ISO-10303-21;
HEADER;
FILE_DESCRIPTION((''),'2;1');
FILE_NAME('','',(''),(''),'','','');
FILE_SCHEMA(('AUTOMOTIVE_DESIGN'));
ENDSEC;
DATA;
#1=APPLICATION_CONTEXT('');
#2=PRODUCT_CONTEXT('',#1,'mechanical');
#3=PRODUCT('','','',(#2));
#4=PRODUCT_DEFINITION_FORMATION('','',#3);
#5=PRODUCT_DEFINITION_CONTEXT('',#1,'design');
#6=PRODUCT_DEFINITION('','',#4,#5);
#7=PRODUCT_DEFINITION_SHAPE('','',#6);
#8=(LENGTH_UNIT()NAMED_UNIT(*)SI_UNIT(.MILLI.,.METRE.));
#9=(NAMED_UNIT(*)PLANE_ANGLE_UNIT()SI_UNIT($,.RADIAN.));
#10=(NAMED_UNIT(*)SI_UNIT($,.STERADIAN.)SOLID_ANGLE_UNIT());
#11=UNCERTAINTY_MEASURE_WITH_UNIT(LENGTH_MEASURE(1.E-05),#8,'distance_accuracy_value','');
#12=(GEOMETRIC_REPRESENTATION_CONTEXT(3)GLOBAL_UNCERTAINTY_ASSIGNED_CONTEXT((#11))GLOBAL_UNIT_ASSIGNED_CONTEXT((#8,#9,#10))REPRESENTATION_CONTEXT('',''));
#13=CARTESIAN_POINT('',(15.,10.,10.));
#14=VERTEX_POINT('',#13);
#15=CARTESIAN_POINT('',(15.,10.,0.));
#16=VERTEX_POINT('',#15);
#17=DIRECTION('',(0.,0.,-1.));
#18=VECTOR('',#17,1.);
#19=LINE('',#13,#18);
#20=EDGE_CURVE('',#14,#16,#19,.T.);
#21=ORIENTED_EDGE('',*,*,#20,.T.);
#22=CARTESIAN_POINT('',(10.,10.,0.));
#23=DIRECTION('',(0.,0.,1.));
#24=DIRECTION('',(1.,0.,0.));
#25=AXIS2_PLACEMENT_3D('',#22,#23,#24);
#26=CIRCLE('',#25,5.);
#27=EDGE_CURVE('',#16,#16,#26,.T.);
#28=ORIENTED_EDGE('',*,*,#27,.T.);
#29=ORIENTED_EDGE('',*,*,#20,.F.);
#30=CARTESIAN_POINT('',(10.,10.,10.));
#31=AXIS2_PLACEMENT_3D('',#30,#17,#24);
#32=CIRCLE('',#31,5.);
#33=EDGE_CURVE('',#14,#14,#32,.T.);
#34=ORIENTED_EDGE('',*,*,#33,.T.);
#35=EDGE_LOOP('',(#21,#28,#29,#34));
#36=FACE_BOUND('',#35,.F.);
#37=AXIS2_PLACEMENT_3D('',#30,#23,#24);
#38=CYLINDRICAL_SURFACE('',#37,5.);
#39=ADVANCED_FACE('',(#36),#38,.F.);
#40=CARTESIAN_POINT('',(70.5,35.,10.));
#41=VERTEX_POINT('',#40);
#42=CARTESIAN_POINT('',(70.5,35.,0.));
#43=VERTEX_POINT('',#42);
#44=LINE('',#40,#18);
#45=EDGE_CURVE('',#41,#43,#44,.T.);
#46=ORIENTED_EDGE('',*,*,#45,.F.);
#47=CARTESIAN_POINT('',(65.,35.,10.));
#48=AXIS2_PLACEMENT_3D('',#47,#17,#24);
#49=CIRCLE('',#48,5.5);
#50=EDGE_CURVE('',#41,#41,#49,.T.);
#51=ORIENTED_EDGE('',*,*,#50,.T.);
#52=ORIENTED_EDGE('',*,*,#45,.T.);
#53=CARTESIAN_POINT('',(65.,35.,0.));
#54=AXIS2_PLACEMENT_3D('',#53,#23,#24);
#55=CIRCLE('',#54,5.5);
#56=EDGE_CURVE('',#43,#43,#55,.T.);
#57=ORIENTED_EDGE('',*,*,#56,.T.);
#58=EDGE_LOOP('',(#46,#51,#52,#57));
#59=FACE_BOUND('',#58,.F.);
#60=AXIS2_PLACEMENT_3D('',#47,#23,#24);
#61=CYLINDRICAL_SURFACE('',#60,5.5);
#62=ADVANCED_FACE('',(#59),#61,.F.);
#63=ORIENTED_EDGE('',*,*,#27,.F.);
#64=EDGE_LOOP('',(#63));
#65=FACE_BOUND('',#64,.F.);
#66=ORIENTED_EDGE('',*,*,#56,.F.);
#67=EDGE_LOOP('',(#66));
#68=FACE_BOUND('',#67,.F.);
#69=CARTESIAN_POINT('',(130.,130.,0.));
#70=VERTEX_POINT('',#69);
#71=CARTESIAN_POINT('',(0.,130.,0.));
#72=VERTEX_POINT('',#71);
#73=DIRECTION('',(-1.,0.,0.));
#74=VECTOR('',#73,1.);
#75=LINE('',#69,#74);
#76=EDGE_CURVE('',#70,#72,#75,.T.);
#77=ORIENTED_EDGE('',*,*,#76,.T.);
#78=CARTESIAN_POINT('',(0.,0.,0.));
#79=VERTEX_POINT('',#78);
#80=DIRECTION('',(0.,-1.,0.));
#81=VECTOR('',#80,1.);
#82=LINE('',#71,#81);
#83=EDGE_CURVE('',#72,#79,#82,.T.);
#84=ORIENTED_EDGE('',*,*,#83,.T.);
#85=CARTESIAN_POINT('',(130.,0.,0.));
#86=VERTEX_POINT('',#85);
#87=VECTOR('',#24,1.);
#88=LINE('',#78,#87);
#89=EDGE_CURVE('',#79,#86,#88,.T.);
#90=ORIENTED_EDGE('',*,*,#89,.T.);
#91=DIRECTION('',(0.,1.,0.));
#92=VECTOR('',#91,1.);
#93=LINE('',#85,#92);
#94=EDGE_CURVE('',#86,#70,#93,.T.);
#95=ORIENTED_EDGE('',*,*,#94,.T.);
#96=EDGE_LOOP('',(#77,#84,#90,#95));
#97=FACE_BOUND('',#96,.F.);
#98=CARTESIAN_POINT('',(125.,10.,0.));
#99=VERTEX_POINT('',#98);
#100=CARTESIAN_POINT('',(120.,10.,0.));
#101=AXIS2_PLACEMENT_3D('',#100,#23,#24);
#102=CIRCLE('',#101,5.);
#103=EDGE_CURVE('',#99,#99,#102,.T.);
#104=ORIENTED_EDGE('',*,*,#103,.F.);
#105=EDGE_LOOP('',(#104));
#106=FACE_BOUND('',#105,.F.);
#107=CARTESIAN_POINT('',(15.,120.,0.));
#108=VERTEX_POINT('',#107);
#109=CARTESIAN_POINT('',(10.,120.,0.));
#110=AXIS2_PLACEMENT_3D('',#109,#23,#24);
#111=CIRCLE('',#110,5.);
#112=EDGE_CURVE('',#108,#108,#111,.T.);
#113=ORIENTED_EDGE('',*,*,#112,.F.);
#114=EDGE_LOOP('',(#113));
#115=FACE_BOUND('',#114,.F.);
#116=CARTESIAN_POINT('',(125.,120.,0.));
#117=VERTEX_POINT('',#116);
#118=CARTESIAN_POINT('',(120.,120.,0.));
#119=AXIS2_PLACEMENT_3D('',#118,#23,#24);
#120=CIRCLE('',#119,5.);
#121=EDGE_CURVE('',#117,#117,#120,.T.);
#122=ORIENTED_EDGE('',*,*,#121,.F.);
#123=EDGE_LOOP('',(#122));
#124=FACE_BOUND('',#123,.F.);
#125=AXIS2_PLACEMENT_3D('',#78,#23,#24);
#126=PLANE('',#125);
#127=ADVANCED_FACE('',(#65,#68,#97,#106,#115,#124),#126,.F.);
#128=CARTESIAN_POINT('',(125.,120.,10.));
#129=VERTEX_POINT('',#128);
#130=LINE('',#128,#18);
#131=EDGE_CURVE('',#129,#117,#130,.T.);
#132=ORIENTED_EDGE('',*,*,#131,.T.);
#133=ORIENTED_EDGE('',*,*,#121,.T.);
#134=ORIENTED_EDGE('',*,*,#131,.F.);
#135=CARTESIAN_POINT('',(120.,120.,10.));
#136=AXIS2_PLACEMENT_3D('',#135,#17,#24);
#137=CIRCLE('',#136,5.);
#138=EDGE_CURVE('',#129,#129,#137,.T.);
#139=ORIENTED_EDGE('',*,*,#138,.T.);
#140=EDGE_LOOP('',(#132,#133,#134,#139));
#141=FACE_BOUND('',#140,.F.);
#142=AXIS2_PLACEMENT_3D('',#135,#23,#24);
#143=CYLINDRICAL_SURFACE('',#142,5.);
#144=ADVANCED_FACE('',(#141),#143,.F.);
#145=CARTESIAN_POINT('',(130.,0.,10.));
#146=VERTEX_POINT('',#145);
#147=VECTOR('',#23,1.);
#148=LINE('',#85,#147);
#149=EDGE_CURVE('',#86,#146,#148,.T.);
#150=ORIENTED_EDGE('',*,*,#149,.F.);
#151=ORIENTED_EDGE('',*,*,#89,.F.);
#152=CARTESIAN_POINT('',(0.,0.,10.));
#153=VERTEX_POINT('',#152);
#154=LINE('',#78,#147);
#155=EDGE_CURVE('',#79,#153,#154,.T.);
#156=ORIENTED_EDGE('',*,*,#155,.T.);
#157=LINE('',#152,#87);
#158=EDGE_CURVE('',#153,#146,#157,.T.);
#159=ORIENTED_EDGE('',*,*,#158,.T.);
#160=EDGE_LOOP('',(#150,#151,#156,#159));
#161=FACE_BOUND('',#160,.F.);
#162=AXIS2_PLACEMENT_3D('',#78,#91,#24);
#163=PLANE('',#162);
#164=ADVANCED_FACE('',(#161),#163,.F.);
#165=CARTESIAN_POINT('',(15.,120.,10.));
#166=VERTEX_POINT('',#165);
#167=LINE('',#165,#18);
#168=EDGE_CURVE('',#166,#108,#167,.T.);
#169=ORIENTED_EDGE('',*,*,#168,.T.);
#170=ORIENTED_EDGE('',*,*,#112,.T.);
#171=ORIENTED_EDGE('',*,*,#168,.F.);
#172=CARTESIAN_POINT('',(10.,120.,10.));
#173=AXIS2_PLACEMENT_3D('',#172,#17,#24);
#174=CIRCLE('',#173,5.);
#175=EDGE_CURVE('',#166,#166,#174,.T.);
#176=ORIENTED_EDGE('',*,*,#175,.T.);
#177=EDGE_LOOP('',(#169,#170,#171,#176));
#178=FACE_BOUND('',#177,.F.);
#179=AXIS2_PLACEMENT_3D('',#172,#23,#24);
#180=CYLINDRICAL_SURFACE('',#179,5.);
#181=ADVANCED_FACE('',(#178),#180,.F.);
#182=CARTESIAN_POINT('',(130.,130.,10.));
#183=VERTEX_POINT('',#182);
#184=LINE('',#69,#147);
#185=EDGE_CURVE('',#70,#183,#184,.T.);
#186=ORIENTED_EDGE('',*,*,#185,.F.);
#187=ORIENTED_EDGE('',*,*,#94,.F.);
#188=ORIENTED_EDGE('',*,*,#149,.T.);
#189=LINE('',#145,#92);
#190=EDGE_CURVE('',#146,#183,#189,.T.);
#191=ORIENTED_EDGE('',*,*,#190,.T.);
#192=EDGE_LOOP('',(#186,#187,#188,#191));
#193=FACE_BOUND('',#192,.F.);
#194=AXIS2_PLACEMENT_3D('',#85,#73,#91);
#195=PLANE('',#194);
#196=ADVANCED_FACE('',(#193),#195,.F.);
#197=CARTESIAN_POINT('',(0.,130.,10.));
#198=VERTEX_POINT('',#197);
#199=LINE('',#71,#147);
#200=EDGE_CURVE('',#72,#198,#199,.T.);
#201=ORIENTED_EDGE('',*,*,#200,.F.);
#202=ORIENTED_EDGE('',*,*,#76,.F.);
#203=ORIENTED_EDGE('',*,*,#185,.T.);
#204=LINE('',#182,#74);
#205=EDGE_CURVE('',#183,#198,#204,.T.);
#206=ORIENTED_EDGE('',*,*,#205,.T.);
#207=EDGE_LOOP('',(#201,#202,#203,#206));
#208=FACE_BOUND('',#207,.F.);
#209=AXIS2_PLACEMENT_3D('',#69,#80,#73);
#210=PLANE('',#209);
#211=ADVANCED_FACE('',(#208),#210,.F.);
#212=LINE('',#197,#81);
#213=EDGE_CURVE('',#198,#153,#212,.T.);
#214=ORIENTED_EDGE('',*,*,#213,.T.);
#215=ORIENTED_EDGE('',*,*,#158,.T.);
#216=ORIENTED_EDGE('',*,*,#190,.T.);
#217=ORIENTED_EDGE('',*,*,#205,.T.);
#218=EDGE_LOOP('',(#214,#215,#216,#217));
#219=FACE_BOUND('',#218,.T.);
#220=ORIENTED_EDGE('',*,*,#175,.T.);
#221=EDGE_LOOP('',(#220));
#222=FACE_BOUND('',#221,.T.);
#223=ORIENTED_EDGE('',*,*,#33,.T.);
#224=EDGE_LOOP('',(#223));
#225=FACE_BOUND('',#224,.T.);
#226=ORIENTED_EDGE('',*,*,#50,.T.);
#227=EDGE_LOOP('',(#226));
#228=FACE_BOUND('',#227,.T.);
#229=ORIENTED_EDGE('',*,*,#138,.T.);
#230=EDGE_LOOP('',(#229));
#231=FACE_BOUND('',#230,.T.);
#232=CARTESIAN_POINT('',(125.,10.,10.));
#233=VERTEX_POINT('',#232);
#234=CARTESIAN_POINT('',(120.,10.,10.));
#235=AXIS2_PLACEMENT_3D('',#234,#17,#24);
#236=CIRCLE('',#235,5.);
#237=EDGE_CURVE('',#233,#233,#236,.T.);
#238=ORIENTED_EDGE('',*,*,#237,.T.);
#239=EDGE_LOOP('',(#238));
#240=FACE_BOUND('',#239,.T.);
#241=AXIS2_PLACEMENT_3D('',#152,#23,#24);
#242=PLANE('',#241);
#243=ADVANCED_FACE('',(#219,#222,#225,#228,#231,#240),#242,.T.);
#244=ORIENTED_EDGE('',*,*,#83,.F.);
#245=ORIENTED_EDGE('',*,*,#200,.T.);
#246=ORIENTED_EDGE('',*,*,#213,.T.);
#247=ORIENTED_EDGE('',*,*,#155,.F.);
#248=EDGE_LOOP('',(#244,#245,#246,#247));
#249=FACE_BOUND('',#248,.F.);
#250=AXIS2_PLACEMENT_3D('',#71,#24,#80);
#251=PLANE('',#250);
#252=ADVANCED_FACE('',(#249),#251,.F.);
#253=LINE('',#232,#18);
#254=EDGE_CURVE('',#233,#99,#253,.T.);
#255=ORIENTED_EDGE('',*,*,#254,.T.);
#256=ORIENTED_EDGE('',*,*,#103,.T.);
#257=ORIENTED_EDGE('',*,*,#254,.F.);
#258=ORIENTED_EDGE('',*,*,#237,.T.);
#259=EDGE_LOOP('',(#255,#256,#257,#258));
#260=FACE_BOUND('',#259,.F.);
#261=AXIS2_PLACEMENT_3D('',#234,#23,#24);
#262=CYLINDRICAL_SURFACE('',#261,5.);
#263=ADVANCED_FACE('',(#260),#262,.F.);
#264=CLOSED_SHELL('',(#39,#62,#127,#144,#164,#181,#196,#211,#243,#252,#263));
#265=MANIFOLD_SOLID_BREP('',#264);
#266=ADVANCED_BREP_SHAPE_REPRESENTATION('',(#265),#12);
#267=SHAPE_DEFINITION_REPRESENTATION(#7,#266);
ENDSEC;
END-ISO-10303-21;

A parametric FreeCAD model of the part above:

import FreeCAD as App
import Part
import Sketcher

V = App.Vector


def add_polygon(sketch, points):
    """Adds a closed chain of lines whose ends are joined by coincident constraints."""
    first, n = sketch.GeometryCount, len(points)
    for a, b in zip(points, points[1:] + points[:1]):
        sketch.addGeometry(Part.LineSegment(App.Vector(*a, 0), App.Vector(*b, 0)), False)
    for i in range(n):
        sketch.addConstraint(Sketcher.Constraint("Coincident", first + i, 2, first + (i + 1) % n, 1))

doc = App.newDocument("Part")
body = doc.addObject("PartDesign::Body", "Body")

# Sketch on XY plane
sketch1 = body.newObject("Sketcher::SketchObject", "Sketch")
sketch1.AttachmentSupport = (doc.getObject("XY_Plane"), [""])
sketch1.MapMode = "FlatFace"
add_polygon(sketch1, [(0, 130), (0, 0), (130, 0), (130, 130)])  # lines 0-3
sketch1.addConstraint([
    Sketcher.Constraint("Vertical", 0),
    Sketcher.Constraint("Horizontal", 1),
    Sketcher.Constraint("Vertical", 2),
    Sketcher.Constraint("Horizontal", 3),
    Sketcher.Constraint("Coincident", 0, 2, -1, 1),
    Sketcher.Constraint("Equal", 3, 0),
    Sketcher.Constraint("DistanceX", 1, 1, 1, 2, 130.0),
])
pad1 = body.newObject("PartDesign::Pad", "Pad")
pad1.Profile = sketch1
pad1.Length = 10

# Sketch on XY plane
sketch2 = body.newObject("Sketcher::SketchObject", "Sketch001")
sketch2.AttachmentSupport = (doc.getObject("XY_Plane"), [""])
sketch2.MapMode = "FlatFace"
sketch2.AttachmentOffset = App.Placement(V(0, 0, 10), App.Rotation())
sketch2.addGeometry([
    Part.Circle(V(120, 120, 0), V(0, 0, 1), 5),
    Part.Circle(V(120, 10, 0), V(0, 0, 1), 5),
    Part.Circle(V(10, 120, 0), V(0, 0, 1), 5),
    Part.Circle(V(10, 10, 0), V(0, 0, 1), 5),
], False)
sketch2.addConstraint([
    Sketcher.Constraint("Equal", 0, 1),
    Sketcher.Constraint("Equal", 1, 2),
    Sketcher.Constraint("Equal", 2, 3),
    Sketcher.Constraint("Horizontal", 0, 3, 2, 3),
    Sketcher.Constraint("Horizontal", 1, 3, 3, 3),
    Sketcher.Constraint("Vertical", 0, 3, 1, 3),
    Sketcher.Constraint("Vertical", 2, 3, 3, 3),
    Sketcher.Constraint("Diameter", 0, 10.0),
    Sketcher.Constraint("DistanceY", -1, 1, 1, 3, 10.0),
    Sketcher.Constraint("DistanceX", -1, 1, 2, 3, 10.0),
    Sketcher.Constraint("DistanceY", 1, 3, 0, 3, 110.0),
    Sketcher.Constraint("DistanceX", 2, 3, 0, 3, 110.0),
])
pocket1 = body.newObject("PartDesign::Pocket", "Pocket")
pocket1.Profile = sketch2
pocket1.Type = "ThroughAll"

# Sketch on XY plane
sketch3 = body.newObject("Sketcher::SketchObject", "Sketch002")
sketch3.AttachmentSupport = (doc.getObject("XY_Plane"), [""])
sketch3.MapMode = "FlatFace"
sketch3.AttachmentOffset = App.Placement(V(0, 0, 10), App.Rotation())
sketch3.addGeometry(Part.Circle(V(65, 35, 0), V(0, 0, 1), 6), False)
sketch3.addConstraint([
    Sketcher.Constraint("Diameter", 0, 11.0),
    Sketcher.Constraint("DistanceX", -1, 1, 0, 3, 65.0),
    Sketcher.Constraint("DistanceY", -1, 1, 0, 3, 35.0),
])
pocket2 = body.newObject("PartDesign::Pocket", "Pocket001")
pocket2.Profile = sketch3
pocket2.Type = "ThroughAll"

doc.recompute()
